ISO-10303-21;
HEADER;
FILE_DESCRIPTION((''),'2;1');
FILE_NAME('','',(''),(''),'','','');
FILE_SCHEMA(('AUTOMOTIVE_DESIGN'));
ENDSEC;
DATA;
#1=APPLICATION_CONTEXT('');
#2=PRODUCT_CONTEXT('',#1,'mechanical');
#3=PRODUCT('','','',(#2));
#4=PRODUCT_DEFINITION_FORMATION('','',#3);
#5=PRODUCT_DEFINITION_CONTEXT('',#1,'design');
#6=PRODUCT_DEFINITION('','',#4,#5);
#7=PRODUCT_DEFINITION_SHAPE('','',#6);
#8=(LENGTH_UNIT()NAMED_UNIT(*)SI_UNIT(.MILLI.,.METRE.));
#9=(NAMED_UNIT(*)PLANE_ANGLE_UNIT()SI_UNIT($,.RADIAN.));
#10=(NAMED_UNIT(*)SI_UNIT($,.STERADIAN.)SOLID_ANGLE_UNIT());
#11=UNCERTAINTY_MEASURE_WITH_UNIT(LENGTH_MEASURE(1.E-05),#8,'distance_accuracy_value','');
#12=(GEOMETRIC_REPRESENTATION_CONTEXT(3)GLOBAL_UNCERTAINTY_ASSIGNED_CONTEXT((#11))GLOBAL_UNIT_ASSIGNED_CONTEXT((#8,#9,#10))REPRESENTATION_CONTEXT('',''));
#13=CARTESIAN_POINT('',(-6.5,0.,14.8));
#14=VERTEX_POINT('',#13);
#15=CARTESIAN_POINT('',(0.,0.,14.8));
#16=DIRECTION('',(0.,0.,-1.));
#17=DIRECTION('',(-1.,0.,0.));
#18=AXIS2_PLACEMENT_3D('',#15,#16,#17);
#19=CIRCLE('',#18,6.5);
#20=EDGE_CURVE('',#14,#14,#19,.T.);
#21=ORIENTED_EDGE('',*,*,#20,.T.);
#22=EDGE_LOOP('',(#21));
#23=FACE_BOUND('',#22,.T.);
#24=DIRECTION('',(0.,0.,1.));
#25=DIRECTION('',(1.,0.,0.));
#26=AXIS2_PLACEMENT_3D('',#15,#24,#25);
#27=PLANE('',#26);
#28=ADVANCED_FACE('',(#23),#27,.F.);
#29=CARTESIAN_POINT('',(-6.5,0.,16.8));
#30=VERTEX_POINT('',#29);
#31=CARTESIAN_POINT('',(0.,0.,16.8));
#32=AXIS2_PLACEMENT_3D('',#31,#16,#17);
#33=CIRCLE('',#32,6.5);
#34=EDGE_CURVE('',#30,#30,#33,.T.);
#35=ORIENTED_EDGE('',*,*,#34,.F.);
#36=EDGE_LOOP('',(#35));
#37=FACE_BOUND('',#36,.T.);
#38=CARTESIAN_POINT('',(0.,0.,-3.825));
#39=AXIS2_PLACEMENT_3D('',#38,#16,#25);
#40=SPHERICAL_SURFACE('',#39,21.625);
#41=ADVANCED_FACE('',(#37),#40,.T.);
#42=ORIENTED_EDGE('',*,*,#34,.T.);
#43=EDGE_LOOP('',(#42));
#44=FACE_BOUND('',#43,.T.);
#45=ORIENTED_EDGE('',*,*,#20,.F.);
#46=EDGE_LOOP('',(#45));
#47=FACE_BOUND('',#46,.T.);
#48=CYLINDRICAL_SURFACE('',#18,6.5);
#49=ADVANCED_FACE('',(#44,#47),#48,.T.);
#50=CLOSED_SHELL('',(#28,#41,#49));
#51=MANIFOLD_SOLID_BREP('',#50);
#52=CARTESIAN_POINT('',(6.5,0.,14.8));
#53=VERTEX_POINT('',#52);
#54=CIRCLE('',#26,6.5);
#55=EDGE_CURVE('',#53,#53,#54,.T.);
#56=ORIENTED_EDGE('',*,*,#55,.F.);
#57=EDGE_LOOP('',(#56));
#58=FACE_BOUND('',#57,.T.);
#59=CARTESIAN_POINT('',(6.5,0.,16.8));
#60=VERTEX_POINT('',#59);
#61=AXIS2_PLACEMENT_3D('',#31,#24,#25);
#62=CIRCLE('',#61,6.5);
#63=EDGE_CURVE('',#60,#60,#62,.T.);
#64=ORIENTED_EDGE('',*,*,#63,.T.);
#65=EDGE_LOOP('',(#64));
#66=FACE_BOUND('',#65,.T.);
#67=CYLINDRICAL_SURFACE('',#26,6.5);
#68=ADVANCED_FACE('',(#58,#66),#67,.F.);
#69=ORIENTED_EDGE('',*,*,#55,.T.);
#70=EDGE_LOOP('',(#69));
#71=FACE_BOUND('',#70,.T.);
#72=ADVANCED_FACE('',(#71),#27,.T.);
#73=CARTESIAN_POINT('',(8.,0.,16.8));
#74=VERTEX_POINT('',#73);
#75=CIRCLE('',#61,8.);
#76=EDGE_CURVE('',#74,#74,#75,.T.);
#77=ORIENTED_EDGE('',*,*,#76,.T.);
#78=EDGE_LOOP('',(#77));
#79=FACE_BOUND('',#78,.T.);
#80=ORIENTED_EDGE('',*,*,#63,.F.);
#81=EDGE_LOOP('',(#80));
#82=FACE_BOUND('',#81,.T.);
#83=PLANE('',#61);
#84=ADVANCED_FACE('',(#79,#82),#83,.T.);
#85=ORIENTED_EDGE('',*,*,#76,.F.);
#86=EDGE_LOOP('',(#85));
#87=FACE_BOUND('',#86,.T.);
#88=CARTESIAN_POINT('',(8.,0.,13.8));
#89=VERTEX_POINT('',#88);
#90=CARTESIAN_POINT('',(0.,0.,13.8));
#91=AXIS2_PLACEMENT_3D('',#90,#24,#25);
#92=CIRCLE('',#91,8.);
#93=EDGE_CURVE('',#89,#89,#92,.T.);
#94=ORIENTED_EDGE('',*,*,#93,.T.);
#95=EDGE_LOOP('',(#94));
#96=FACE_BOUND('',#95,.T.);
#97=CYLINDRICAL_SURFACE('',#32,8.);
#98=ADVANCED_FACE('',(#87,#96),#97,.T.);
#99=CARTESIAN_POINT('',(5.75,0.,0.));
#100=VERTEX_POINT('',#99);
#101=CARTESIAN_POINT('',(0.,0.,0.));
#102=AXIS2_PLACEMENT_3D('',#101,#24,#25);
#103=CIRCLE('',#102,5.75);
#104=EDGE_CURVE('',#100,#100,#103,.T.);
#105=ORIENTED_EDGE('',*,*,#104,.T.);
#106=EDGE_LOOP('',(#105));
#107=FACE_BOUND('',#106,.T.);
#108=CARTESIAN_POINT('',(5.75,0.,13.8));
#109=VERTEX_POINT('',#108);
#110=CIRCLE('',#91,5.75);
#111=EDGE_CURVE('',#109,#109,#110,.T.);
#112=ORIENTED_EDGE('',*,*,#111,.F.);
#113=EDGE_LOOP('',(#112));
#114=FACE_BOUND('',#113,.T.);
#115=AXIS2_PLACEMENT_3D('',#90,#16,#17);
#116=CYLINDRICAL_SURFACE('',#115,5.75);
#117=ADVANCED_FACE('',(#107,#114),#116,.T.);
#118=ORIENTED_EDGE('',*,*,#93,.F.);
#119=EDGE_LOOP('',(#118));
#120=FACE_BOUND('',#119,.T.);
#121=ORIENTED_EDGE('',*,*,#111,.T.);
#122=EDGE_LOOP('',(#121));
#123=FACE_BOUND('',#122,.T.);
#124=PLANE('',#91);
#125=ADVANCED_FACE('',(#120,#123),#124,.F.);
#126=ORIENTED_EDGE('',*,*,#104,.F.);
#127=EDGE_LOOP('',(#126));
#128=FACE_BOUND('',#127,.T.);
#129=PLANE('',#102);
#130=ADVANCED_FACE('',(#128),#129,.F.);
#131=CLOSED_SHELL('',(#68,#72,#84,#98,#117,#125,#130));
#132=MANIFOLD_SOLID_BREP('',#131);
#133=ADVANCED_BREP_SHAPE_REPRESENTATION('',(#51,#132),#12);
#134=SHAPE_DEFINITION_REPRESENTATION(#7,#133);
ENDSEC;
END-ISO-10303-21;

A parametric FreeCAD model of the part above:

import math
import FreeCAD as App
import Part
import Sketcher

V = App.Vector
Q = App.Units.Quantity

doc = App.newDocument("Part")
body = doc.addObject("PartDesign::Body", "Body")

# Sketch on XY plane
sketch1 = body.newObject("Sketcher::SketchObject", "Sketch")
sketch1.AttachmentSupport = (doc.getObject("XY_Plane"), [""])
sketch1.MapMode = "FlatFace"
sketch1.addGeometry(Part.Circle(V(0, 0, 0), V(0, 0, 1), 5.75), False)
sketch1.addConstraint(Sketcher.Constraint("Coincident", 0, 3, -1, 1))
sketch1.addConstraint(Sketcher.Constraint("Diameter", 0, Q("11.5 mm")))
pad1 = body.newObject("PartDesign::Pad", "Pad")
pad1.Profile = sketch1
pad1.Length = 13.8

# Sketch on XY plane
sketch2 = body.newObject("Sketcher::SketchObject", "Sketch001")
sketch2.AttachmentSupport = (doc.getObject("XY_Plane"), [""])
sketch2.MapMode = "FlatFace"
sketch2.AttachmentOffset = App.Placement(V(0, 0, 13.8), App.Rotation())
sketch2.addGeometry(Part.Circle(V(0, 0, 0), V(0, 0, 1), 8), False)
sketch2.addConstraint(Sketcher.Constraint("Coincident", 0, 3, -1, 1))
sketch2.addConstraint(Sketcher.Constraint("Diameter", 0, Q("16 mm")))
pad2 = body.newObject("PartDesign::Pad", "Pad001")
pad2.Profile = sketch2
pad2.Length = 3

# Sketch on XY plane
sketch3 = body.newObject("Sketcher::SketchObject", "Sketch002")
sketch3.AttachmentSupport = (doc.getObject("XY_Plane"), [""])
sketch3.MapMode = "FlatFace"
sketch3.AttachmentOffset = App.Placement(V(0, 0, 16.8), App.Rotation())
sketch3.addGeometry(Part.Circle(V(0, 0, 0), V(0, 0, 1), 6.5), False)
sketch3.addConstraint(Sketcher.Constraint("Coincident", 0, 3, -1, 1))
sketch3.addConstraint(Sketcher.Constraint("Diameter", 0, Q("13 mm")))
pocket1 = body.newObject("PartDesign::Pocket", "Pocket")
pocket1.Profile = sketch3
pocket1.Length = 2
body2 = doc.addObject("PartDesign::Body", "Body001")

# Sketch on XZ plane
sketch4 = body2.newObject("Sketcher::SketchObject", "Sketch003")
sketch4.AttachmentSupport = (doc.getObject("XZ_Plane001"), [""])
sketch4.MapMode = "FlatFace"
sketch4.addGeometry(Part.LineSegment(V(0, 14.8, 0), V(0, 17.8, 0)), False)
sketch4.addGeometry(Part.ArcOfCircle(Part.Circle(V(0, -3.825, 0), V(0, 0, 1), 21.625), math.radians(72.507675), math.radians(90)), False)
sketch4.addGeometry(Part.LineSegment(V(6.5, 16.8, 0), V(6.5, 14.8, 0)), False)
sketch4.addGeometry(Part.LineSegment(V(6.5, 14.8, 0), V(0, 14.8, 0)), False)
sketch4.addConstraint(Sketcher.Constraint("Coincident", 0, 2, 1, 2))
sketch4.addConstraint(Sketcher.Constraint("Coincident", 1, 1, 2, 1))
sketch4.addConstraint(Sketcher.Constraint("Coincident", 2, 2, 3, 1))
sketch4.addConstraint(Sketcher.Constraint("Coincident", 3, 2, 0, 1))
sketch4.addConstraint(Sketcher.Constraint("Vertical", 0))
sketch4.addConstraint(Sketcher.Constraint("Vertical", 2))
sketch4.addConstraint(Sketcher.Constraint("Horizontal", 3))
sketch4.addConstraint(Sketcher.Constraint("PointOnObject", 1, 3, -2))
sketch4.addConstraint(Sketcher.Constraint("PointOnObject", 0, 2, -2))
sketch4.addConstraint(Sketcher.Constraint("DistanceY", 0, 1, 0, 2, Q("3 mm")))
sketch4.addConstraint(Sketcher.Constraint("DistanceY", 2, 2, 2, 1, Q("2 mm")))
sketch4.addConstraint(Sketcher.Constraint("DistanceX", 3, 2, 3, 1, Q("6.5 mm")))
sketch4.addConstraint(Sketcher.Constraint("DistanceY", -1, 1, 0, 2, Q("17.8 mm")))
revolution = body2.newObject("PartDesign::Revolution", "Revolution")
revolution.Profile = sketch4
revolution.ReferenceAxis = (sketch4, ["V_Axis"])
revolution.Angle = 360

doc.recompute()
